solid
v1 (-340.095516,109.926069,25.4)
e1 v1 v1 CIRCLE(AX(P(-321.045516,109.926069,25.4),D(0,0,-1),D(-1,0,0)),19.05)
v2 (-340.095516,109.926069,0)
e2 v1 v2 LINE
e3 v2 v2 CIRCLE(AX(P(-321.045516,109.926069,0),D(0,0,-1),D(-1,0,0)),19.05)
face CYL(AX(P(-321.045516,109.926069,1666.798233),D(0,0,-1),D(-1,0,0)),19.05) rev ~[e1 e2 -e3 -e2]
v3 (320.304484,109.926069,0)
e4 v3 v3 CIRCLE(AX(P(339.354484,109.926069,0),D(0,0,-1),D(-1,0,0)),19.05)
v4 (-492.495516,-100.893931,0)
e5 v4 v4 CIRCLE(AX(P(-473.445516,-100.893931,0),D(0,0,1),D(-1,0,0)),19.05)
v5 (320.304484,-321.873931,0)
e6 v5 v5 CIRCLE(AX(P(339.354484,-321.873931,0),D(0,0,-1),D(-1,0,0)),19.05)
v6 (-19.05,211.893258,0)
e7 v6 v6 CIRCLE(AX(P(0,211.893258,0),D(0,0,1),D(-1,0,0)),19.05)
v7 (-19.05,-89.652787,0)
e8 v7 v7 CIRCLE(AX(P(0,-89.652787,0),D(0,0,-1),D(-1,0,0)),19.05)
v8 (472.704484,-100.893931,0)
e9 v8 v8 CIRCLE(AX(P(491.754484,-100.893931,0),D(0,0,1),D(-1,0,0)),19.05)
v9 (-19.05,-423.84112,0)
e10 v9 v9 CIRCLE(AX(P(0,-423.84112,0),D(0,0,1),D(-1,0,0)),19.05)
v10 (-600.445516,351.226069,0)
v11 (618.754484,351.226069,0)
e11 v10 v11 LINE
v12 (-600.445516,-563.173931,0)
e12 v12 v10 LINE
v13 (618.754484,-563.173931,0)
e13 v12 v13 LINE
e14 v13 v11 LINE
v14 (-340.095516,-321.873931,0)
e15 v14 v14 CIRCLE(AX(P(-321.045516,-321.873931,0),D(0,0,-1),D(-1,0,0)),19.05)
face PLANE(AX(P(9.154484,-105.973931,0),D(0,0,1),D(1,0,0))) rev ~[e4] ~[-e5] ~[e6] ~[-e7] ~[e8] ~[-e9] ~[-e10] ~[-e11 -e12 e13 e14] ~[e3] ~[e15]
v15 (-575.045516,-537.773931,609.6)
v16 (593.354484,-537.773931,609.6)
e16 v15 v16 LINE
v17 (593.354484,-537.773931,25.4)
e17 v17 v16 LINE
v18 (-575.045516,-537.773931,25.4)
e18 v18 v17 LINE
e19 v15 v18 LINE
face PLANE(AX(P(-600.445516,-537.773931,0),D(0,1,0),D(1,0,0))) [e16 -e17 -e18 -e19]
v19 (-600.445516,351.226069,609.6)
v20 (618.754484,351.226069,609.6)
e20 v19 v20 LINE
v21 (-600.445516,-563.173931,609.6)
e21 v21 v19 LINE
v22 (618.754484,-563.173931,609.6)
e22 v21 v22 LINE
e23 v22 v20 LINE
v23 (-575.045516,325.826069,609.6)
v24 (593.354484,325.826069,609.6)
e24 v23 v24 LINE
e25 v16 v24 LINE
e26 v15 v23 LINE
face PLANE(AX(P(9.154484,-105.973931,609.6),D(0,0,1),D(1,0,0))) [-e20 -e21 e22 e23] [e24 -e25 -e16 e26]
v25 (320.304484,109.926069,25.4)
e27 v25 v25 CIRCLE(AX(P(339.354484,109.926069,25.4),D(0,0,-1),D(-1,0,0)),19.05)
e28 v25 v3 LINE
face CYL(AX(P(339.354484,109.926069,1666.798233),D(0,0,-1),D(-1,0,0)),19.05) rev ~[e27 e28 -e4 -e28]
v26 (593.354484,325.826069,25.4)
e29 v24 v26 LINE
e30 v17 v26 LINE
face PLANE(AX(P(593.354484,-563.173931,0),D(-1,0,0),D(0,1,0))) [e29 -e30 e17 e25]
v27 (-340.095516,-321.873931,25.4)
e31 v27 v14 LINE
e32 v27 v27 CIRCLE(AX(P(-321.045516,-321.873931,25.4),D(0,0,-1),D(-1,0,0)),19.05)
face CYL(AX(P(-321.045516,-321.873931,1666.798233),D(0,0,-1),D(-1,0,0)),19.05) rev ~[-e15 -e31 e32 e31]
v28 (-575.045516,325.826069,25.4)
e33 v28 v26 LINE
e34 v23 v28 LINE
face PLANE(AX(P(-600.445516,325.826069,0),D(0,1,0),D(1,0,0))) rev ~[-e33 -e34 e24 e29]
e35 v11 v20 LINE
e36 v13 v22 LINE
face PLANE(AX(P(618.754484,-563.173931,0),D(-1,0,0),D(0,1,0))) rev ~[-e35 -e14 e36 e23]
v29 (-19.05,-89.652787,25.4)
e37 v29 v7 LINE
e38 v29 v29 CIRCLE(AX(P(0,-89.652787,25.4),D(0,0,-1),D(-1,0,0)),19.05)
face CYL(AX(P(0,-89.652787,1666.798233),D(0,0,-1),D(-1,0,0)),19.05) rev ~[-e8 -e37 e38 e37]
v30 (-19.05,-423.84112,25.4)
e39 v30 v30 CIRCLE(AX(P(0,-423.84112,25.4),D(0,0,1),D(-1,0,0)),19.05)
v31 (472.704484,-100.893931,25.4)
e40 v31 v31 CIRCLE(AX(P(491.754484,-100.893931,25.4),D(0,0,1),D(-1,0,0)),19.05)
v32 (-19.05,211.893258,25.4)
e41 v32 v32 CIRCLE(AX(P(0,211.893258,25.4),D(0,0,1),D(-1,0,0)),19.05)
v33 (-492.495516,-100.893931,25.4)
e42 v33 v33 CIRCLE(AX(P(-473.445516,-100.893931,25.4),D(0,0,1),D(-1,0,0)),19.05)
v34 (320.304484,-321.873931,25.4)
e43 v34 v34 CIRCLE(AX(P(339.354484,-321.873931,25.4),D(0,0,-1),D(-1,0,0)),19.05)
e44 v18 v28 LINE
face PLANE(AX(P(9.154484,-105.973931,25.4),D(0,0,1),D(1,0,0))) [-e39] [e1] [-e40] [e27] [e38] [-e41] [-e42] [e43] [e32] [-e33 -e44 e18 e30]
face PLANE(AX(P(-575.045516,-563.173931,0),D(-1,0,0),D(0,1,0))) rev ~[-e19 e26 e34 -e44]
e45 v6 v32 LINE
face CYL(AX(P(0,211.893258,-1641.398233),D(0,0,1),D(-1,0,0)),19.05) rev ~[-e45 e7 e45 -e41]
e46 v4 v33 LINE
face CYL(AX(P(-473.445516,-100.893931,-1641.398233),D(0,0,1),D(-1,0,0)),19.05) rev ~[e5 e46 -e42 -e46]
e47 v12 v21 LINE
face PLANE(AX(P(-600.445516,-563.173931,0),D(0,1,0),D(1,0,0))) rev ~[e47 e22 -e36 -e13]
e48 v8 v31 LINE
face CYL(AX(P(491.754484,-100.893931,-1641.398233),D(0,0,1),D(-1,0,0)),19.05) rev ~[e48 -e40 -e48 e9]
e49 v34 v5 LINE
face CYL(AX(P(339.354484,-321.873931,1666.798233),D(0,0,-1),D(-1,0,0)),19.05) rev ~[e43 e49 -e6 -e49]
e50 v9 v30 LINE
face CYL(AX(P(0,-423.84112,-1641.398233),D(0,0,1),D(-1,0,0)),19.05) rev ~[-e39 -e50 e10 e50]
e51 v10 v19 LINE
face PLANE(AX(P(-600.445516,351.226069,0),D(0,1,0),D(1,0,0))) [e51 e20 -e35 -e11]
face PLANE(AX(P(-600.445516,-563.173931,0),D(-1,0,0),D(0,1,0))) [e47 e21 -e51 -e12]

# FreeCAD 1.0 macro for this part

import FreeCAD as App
import Part
import Sketcher

V = App.Vector
Q = App.Units.Quantity


def faces_at(feature, points):
    """Names of the faces that lie closest to the given points."""
    faces = feature.Shape.Faces
    near = lambda p: min(range(len(faces)), key=lambda i: faces[i].distToShape(Part.Vertex(*p))[0])
    return sorted({f"Face{near(p) + 1}" for p in points})

doc = App.newDocument("Part")
body = doc.addObject("PartDesign::Body", "Body")

# Sketch on XY plane
sketch1 = body.newObject("Sketcher::SketchObject", "Sketch")
sketch1.AttachmentSupport = (doc.getObject("XY_Plane"), [""])
sketch1.MapMode = "FlatFace"
sketch1.addGeometry(Part.LineSegment(V(-600, 351, 0), V(-600, -563, 0)), False)
sketch1.addGeometry(Part.LineSegment(V(-600, -563, 0), V(619, -563, 0)), False)
sketch1.addGeometry(Part.LineSegment(V(619, -563, 0), V(619, 351, 0)), False)
sketch1.addGeometry(Part.LineSegment(V(619, 351, 0), V(-600, 351, 0)), False)
sketch1.addConstraint(Sketcher.Constraint("Coincident", 0, 2, 1, 1))
sketch1.addConstraint(Sketcher.Constraint("Coincident", 1, 2, 2, 1))
sketch1.addConstraint(Sketcher.Constraint("Coincident", 2, 2, 3, 1))
sketch1.addConstraint(Sketcher.Constraint("Coincident", 3, 2, 0, 1))
sketch1.addConstraint(Sketcher.Constraint("Vertical", 0))
sketch1.addConstraint(Sketcher.Constraint("Horizontal", 1))
sketch1.addConstraint(Sketcher.Constraint("Vertical", 2))
sketch1.addConstraint(Sketcher.Constraint("Horizontal", 3))
sketch1.addConstraint(Sketcher.Constraint("DistanceX", 1, 1, 1, 2, Q("48 in")))
sketch1.addConstraint(Sketcher.Constraint("DistanceY", 0, 2, 0, 1, Q("36 in")))
sketch1.addConstraint(Sketcher.Constraint("DistanceY", 0, 2, -1, 1, 563.173931))
sketch1.addConstraint(Sketcher.Constraint("DistanceX", 0, 2, -1, 1, 600.445516))
pad1 = body.newObject("PartDesign::Pad", "Pad")
pad1.Profile = sketch1
pad1.Length = Q("24 in")
doc.recompute()

thickness = body.newObject("PartDesign::Thickness", "Thickness")
thickness.Base = (pad1, faces_at(pad1, [(9.154, -105.974, 609.6)]))
thickness.Value = Q("1 in")
thickness.Reversed = True
thickness.Join = "Arc"

# Sketch on XY plane
sketch2 = body.newObject("Sketcher::SketchObject", "Sketch001")
sketch2.AttachmentSupport = (doc.getObject("XY_Plane"), [""])
sketch2.MapMode = "FlatFace"
sketch2.AttachmentOffset = App.Placement(V(0, 0, 1 * 25.4), App.Rotation())
sketch2.addGeometry(Part.Circle(V(-321, 110, 0), V(0, 0, 1), 19), False)
sketch2.addGeometry(Part.Circle(V(339, 110, 0), V(0, 0, 1), 19), False)
sketch2.addGeometry(Part.Circle(V(339, -322, 0), V(0, 0, 1), 19), False)
sketch2.addGeometry(Part.Circle(V(-321, -322, 0), V(0, 0, 1), 19), False)
sketch2.addGeometry(Part.Circle(V(0, -90, 0), V(0, 0, 1), 19), False)
sketch2.addConstraint(Sketcher.Constraint("Equal", 0, 1))
sketch2.addConstraint(Sketcher.Constraint("Equal", 1, 2))
sketch2.addConstraint(Sketcher.Constraint("Equal", 2, 3))
sketch2.addConstraint(Sketcher.Constraint("Equal", 3, 4))
sketch2.addConstraint(Sketcher.Constraint("PointOnObject", 4, 3, -2))
sketch2.addConstraint(Sketcher.Constraint("Horizontal", 0, 3, 1, 3))
sketch2.addConstraint(Sketcher.Constraint("Horizontal", 2, 3, 3, 3))
sketch2.addConstraint(Sketcher.Constraint("Vertical", 1, 3, 2, 3))
sketch2.addConstraint(Sketcher.Constraint("Vertical", 0, 3, 3, 3))
sketch2.addConstraint(Sketcher.Constraint("Diameter", 0, Q("1.5 in")))
sketch2.addConstraint(Sketcher.Constraint("DistanceX", 0, 3, 1, 3, Q("26 in")))
sketch2.addConstraint(Sketcher.Constraint("DistanceY", 2, 3, 1, 3, Q("17 in")))
sketch2.addConstraint(Sketcher.Constraint("DistanceY", -1, 1, 0, 3, 109.926069))
sketch2.addConstraint(Sketcher.Constraint("DistanceX", 0, 3, -1, 1, 321.045516))
sketch2.addConstraint(Sketcher.Constraint("DistanceY", 4, 3, -1, 1, 89.652787))
doc.recompute()
hole = body.newObject("PartDesign::Hole", "Hole")
hole.Profile = sketch2
hole.ThreadType = "None"
hole.Diameter = Q("1.5 in")
hole.DepthType = "ThroughAll"

# Sketch on XY plane
sketch3 = body.newObject("Sketcher::SketchObject", "Sketch002")
sketch3.AttachmentSupport = (doc.getObject("XY_Plane"), [""])
sketch3.MapMode = "FlatFace"
sketch3.addGeometry(Part.Circle(V(0, 212, 0), V(0, 0, 1), 19), False)
sketch3.addGeometry(Part.Circle(V(0, -424, 0), V(0, 0, 1), 19), False)
sketch3.addConstraint(Sketcher.Constraint("Equal", 0, 1))
sketch3.addConstraint(Sketcher.Constraint("PointOnObject", 0, 3, -2))
sketch3.addConstraint(Sketcher.Constraint("PointOnObject", 1, 3, -2))
sketch3.addConstraint(Sketcher.Constraint("Diameter", 0, Q("1.5 in")))
sketch3.addConstraint(Sketcher.Constraint("DistanceY", -1, 1, 0, 3, 211.893258))
sketch3.addConstraint(Sketcher.Constraint("DistanceY", 1, 3, -1, 1, 423.84112))
doc.recompute()
hole2 = body.newObject("PartDesign::Hole", "Hole001")
hole2.Profile = sketch3
hole2.ThreadType = "None"
hole2.Diameter = Q("1.5 in")
hole2.DepthType = "ThroughAll"
hole2.Reversed = True

# Sketch on XY plane
sketch4 = body.newObject("Sketcher::SketchObject", "Sketch003")
sketch4.AttachmentSupport = (doc.getObject("XY_Plane"), [""])
sketch4.MapMode = "FlatFace"
sketch4.addGeometry(Part.Circle(V(-473, -101, 0), V(0, 0, 1), 19), False)
sketch4.addGeometry(Part.Circle(V(492, -101, 0), V(0, 0, 1), 19), False)
sketch4.addConstraint(Sketcher.Constraint("Equal", 0, 1))
sketch4.addConstraint(Sketcher.Constraint("Horizontal", 0, 3, 1, 3))
sketch4.addConstraint(Sketcher.Constraint("Diameter", 0, Q("1.5 in")))
sketch4.addConstraint(Sketcher.Constraint("DistanceX", 0, 3, 1, 3, Q("38 in")))
sketch4.addConstraint(Sketcher.Constraint("DistanceY", 0, 3, -1, 1, 100.893931))
sketch4.addConstraint(Sketcher.Constraint("DistanceX", 0, 3, -1, 1, 473.445516))
doc.recompute()
hole3 = body.newObject("PartDesign::Hole", "Hole002")
hole3.Profile = sketch4
hole3.ThreadType = "None"
hole3.Diameter = Q("1.5 in")
hole3.DepthType = "ThroughAll"
hole3.Reversed = True

doc.recompute()
